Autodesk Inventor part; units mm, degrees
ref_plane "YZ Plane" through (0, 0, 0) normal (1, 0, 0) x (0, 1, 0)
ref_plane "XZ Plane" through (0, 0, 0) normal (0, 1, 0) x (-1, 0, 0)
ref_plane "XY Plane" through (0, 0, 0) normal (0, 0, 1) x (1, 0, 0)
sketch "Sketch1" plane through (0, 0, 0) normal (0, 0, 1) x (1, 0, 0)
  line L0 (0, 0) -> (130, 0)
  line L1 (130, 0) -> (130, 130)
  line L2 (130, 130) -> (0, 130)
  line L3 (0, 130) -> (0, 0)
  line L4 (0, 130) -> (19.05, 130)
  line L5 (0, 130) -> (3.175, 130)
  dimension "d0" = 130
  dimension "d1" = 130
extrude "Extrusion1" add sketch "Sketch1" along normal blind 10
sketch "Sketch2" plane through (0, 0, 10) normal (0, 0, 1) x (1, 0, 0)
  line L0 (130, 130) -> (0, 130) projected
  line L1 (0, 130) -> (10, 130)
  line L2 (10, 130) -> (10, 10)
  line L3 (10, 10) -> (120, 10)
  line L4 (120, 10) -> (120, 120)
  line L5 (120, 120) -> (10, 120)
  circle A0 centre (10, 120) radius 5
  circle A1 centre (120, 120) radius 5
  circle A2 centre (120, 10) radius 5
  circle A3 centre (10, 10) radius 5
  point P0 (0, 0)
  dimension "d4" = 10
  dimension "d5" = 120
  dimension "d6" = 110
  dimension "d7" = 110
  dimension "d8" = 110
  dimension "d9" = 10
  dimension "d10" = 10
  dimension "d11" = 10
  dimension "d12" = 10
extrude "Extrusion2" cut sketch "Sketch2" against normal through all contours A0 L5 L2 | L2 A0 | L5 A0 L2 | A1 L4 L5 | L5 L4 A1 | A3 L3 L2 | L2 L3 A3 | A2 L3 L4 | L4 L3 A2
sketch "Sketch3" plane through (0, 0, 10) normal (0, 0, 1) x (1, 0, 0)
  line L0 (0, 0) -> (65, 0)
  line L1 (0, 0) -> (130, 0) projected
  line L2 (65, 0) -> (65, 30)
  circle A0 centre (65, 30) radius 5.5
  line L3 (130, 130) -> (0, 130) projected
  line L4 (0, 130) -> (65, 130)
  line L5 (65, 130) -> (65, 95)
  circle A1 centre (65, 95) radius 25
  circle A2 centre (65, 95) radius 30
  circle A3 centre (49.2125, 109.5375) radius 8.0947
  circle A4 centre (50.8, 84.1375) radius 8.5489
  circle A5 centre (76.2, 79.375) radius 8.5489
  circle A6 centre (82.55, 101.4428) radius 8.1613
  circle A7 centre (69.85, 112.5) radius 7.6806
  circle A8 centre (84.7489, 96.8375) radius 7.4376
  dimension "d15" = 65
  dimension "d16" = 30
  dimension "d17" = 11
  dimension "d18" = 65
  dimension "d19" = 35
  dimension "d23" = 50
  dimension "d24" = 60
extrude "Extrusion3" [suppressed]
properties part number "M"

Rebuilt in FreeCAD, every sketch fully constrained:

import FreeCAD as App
import Part
import Sketcher
from FreeCAD import Vector


def add_polygon(sketch, points):
    """Adds a closed chain of lines whose ends are joined by coincident constraints."""
    first, n = sketch.GeometryCount, len(points)
    for a, b in zip(points, points[1:] + points[:1]):
        sketch.addGeometry(Part.LineSegment(App.Vector(*a, 0), App.Vector(*b, 0)), False)
    for i in range(n):
        sketch.addConstraint(Sketcher.Constraint("Coincident", first + i, 2, first + (i + 1) % n, 1))

doc = App.newDocument("Part")
params = doc.addObject("Spreadsheet::Sheet", "Params")
for row, (alias, value) in enumerate([
    ("sketch1_width", "130 mm"),
    ("pad1_length", "10 mm"),
    ("sketch2_diameter", "10 mm"),
], start=1):
    params.set(f"A{row}", alias)
    params.set(f"B{row}", "=" + value)
    params.setAlias(f"B{row}", alias)

body = doc.addObject("PartDesign::Body", "Body")

# Sketch on XY plane
sketch1 = doc.addObject("Sketcher::SketchObject", "Sketch")
body.addObject(sketch1)
sketch1.AttachmentSupport = (doc.XY_Plane, [""])
sketch1.MapMode = "FlatFace"
add_polygon(sketch1, [(0, 130), (0, 0), (130, 0), (130, 130)])  # lines 0-3
sketch1.addConstraint([
    Sketcher.Constraint("Vertical", 0),
    Sketcher.Constraint("Horizontal", 1),
    Sketcher.Constraint("Vertical", 2),
    Sketcher.Constraint("Horizontal", 3),
    Sketcher.Constraint("Coincident", 0, 2, -1, 1),
    Sketcher.Constraint("Equal", 3, 0),
    Sketcher.Constraint("DistanceX", 1, 1, 1, 2, 130.0),
])
sketch1.setExpression("Constraints[10]", "Params.sketch1_width")
pad1 = doc.addObject("PartDesign::Pad", "Pad")
body.addObject(pad1)
pad1.Profile = sketch1
pad1.setExpression("Length", "Params.pad1_length")

# Sketch on XY plane
sketch2 = doc.addObject("Sketcher::SketchObject", "Sketch001")
body.addObject(sketch2)
sketch2.AttachmentSupport = (doc.XY_Plane, [""])
sketch2.MapMode = "FlatFace"
sketch2.AttachmentOffset = App.Placement(Vector(0, 0, 10), App.Rotation())
sketch2.addGeometry([
    Part.Circle(Vector(10, 120, 0), Vector(0, 0, 1), 5),
    Part.Circle(Vector(120, 120, 0), Vector(0, 0, 1), 5),
    Part.Circle(Vector(10, 10, 0), Vector(0, 0, 1), 5),
    Part.Circle(Vector(120, 10, 0), Vector(0, 0, 1), 5),
], False)
sketch2.addConstraint([
    Sketcher.Constraint("Equal", 0, 1),
    Sketcher.Constraint("Equal", 1, 2),
    Sketcher.Constraint("Equal", 2, 3),
    Sketcher.Constraint("Horizontal", 0, 3, 1, 3),
    Sketcher.Constraint("Horizontal", 2, 3, 3, 3),
    Sketcher.Constraint("Vertical", 0, 3, 2, 3),
    Sketcher.Constraint("Vertical", 1, 3, 3, 3),
    Sketcher.Constraint("Diameter", 0, 10.0),
    Sketcher.Constraint("DistanceX", -1, 1, 0, 3, 10.0),
    Sketcher.Constraint("DistanceY", -1, 1, 0, 3, 120.0),
    Sketcher.Constraint("DistanceX", -1, 1, 1, 3, 120.0),
    Sketcher.Constraint("DistanceY", -1, 1, 2, 3, 10.0),
])
sketch2.setExpression("Constraints[7]", "Params.sketch2_diameter")
pocket1 = doc.addObject("PartDesign::Pocket", "Pocket")
body.addObject(pocket1)
pocket1.Profile = sketch2
pocket1.Type = "ThroughAll"

doc.recompute()
